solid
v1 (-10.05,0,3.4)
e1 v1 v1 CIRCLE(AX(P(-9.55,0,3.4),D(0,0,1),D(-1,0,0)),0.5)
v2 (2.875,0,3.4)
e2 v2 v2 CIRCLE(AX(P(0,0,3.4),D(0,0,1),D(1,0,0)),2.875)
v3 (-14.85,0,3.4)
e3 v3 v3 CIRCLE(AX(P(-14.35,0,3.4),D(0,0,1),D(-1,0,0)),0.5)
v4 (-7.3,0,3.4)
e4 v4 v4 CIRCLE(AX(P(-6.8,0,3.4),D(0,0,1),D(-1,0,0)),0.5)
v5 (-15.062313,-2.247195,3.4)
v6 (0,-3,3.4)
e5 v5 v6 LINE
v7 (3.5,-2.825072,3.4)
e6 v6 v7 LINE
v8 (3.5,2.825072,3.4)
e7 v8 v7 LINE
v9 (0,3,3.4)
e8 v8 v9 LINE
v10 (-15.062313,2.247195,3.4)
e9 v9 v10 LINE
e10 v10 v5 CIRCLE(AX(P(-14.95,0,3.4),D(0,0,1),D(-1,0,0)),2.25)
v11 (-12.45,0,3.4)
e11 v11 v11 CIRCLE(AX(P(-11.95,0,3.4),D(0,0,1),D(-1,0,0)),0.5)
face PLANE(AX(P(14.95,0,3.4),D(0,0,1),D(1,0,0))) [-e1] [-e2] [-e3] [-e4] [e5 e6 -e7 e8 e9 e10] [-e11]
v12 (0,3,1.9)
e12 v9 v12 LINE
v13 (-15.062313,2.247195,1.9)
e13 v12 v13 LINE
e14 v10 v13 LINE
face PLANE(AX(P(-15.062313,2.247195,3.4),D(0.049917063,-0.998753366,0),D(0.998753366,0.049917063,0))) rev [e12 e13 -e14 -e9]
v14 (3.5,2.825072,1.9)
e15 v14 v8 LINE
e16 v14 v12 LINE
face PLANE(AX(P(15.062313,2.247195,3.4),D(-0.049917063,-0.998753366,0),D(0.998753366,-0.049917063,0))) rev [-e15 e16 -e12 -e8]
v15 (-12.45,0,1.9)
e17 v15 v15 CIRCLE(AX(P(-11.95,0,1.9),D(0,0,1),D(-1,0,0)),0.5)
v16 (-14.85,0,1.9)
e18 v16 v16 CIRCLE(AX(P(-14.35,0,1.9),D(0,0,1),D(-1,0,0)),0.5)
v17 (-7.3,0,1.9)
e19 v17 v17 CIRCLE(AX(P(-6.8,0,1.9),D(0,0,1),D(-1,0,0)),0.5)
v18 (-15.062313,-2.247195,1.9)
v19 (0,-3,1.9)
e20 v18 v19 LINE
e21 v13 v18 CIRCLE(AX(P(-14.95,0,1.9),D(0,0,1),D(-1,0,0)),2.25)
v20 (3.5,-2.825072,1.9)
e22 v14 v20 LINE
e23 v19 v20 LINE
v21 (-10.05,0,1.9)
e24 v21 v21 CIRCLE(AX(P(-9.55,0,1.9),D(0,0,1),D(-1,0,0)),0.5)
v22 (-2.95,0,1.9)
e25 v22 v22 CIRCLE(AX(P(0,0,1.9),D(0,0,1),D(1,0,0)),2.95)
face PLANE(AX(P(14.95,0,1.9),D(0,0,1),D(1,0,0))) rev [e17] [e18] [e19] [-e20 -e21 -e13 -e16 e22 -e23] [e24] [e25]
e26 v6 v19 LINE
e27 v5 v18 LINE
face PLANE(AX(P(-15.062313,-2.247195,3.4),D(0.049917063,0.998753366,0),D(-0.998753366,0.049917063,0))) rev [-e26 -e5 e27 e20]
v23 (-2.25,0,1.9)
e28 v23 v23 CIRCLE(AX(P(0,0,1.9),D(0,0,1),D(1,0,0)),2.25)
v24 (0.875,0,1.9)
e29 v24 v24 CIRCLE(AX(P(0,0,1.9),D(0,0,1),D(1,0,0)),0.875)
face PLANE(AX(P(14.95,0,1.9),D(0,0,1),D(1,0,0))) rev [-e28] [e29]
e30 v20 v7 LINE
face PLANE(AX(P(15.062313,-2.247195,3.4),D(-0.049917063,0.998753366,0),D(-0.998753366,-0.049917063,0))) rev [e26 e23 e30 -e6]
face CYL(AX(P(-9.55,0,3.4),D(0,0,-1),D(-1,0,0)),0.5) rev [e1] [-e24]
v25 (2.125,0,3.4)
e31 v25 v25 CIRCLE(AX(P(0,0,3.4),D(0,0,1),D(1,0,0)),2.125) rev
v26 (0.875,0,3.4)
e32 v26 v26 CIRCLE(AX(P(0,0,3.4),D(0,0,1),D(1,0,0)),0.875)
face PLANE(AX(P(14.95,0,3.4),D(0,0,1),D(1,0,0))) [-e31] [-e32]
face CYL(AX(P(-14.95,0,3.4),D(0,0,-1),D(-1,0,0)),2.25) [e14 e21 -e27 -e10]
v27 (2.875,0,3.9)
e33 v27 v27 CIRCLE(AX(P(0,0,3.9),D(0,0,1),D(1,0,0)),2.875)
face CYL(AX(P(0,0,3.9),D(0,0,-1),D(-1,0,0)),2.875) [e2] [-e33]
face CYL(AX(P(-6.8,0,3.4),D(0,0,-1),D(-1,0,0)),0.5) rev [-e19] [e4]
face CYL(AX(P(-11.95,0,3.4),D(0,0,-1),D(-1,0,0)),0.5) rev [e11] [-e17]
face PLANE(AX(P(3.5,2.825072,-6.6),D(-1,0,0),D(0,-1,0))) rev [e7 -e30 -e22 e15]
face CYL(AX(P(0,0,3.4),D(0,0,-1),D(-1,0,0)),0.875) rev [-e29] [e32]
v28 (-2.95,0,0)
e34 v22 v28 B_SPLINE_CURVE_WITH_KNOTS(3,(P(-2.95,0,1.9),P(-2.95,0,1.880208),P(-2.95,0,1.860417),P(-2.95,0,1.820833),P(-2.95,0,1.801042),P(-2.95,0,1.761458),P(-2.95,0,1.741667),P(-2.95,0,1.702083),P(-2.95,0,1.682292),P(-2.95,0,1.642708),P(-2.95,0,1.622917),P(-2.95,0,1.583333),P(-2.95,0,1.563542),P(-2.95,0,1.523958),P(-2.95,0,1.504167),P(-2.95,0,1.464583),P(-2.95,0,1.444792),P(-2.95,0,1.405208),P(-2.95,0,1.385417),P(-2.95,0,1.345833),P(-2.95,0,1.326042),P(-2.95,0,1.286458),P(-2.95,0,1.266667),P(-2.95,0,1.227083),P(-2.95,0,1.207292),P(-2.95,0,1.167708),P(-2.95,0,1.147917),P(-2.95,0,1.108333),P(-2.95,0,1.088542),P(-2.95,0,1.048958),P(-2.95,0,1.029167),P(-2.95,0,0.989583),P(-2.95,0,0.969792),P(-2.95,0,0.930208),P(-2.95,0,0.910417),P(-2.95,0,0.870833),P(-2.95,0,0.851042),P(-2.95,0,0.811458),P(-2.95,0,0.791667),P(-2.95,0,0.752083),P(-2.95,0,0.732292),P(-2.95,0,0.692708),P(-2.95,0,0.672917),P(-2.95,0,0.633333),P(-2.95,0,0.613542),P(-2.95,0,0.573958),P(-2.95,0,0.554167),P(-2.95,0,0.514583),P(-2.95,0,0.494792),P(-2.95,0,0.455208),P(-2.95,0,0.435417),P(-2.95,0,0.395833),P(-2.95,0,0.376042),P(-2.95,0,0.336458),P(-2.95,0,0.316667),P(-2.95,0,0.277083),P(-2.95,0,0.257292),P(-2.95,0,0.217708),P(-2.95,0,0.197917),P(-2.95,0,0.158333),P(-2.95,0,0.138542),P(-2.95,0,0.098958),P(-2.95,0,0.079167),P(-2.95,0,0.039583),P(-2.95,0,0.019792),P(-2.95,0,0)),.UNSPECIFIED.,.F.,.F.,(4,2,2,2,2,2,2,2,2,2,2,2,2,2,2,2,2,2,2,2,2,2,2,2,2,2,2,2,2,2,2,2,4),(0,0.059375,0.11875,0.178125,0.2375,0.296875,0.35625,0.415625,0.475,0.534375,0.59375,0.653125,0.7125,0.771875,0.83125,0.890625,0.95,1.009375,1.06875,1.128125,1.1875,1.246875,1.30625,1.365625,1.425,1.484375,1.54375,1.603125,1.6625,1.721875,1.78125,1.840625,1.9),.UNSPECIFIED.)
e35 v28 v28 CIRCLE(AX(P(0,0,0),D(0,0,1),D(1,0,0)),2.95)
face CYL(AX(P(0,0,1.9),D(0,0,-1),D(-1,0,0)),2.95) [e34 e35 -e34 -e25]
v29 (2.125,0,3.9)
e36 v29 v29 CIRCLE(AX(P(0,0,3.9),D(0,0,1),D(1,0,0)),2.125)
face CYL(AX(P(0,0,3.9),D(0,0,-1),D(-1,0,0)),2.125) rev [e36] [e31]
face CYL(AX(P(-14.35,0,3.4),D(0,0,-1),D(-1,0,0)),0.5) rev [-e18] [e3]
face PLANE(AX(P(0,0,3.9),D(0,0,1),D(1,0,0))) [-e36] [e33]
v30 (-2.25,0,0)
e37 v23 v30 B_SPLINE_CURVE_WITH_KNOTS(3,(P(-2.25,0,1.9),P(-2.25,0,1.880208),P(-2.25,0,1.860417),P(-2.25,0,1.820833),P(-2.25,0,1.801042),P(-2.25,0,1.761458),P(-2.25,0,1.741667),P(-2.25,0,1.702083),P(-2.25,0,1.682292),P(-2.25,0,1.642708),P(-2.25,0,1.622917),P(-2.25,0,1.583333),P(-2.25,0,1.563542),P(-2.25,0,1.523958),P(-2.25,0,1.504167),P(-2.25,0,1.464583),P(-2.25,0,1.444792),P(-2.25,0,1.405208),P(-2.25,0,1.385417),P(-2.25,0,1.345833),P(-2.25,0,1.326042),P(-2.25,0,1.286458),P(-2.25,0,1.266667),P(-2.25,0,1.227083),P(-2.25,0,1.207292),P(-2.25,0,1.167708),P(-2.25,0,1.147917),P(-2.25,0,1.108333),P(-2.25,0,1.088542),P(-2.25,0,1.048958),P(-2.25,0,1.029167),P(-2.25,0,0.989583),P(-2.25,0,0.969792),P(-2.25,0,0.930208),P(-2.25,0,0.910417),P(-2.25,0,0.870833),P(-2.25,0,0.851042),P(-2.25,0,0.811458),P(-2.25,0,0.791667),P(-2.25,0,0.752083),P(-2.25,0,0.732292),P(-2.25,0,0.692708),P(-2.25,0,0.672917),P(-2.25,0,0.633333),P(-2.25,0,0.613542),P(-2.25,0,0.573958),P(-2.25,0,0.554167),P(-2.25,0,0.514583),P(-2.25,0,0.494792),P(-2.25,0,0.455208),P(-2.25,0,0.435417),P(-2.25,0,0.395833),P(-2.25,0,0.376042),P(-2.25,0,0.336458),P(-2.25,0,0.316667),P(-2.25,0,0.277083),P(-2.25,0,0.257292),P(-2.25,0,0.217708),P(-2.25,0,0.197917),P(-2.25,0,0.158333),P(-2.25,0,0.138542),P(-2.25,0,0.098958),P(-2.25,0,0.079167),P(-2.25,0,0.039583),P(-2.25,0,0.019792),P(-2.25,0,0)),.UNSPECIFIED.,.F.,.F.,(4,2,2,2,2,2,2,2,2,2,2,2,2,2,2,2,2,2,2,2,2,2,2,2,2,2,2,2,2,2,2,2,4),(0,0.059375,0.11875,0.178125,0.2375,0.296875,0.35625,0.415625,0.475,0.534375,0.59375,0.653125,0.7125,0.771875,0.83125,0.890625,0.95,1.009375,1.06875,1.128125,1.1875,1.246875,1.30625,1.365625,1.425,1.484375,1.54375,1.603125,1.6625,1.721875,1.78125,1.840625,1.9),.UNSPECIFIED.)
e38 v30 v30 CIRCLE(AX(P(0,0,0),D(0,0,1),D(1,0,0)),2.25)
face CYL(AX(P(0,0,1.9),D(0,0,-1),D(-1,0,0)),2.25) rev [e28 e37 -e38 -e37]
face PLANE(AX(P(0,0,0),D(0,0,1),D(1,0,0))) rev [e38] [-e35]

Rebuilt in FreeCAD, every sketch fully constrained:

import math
import FreeCAD as App
import Part
import Sketcher
Q = App.Units.Quantity

doc = App.newDocument("Part")
params = doc.addObject("Spreadsheet::Sheet", "Params")
for row, (alias, value) in enumerate([
    ("sketch1_diameter", "5.9 mm"),
    ("sketch1_diameter2", "4.5 mm"),
    ("pad1_length", "1.9 mm"),
    ("sketch2_diameter", "1 mm"),
    ("sketch2_diameter2", "1.75 mm"),
    ("sketch2_radius", "2.25 mm"),
    ("pad2_length", "1.5 mm"),
    ("sketch3_diameter", "5.75 mm"),
    ("sketch3_diameter2", "4.25 mm"),
    ("pad3_length", "0.5 mm"),
    ("sketch4_radius", "2.25 mm"),
    ("pocket1_length", "10 mm"),
], start=1):
    params.set(f"A{row}", alias)
    params.set(f"B{row}", "=" + value)
    params.setAlias(f"B{row}", alias)

body = doc.addObject("PartDesign::Body", "Body")

sketch1 = body.newObject("Sketcher::SketchObject", "Sketch")
sketch1.AttachmentSupport = (doc.getObject("XY_Plane"), [""])
sketch1.MapMode = "FlatFace"
sketch1.addGeometry(Part.Circle(App.Vector(0, 0, 0), App.Vector(0, 0, 1), 2.95), False)
sketch1.addGeometry(Part.Circle(App.Vector(0, 0, 0), App.Vector(0, 0, 1), 2.25), False)
sketch1.addConstraint(Sketcher.Constraint("Coincident", 0, 3, -1, 1))
sketch1.addConstraint(Sketcher.Constraint("Coincident", 1, 3, -1, 1))
sketch1.addConstraint(Sketcher.Constraint("Diameter", 0, Q("5.9 mm")))
sketch1.addConstraint(Sketcher.Constraint("Diameter", 1, Q("4.5 mm")))
sketch1.setExpression("Constraints[2]", "Params.sketch1_diameter")
sketch1.setExpression("Constraints[3]", "Params.sketch1_diameter2")
pad1 = body.newObject("PartDesign::Pad", "Pad")
pad1.Profile = sketch1
pad1.setExpression("Length", "Params.pad1_length")

sketch2 = body.newObject("Sketcher::SketchObject", "Sketch001")
sketch2.AttachmentSupport = (doc.getObject("XY_Plane"), [""])
sketch2.MapMode = "FlatFace"
sketch2.AttachmentOffset = App.Placement(App.Vector(0, 0, 1.9), App.Rotation())
sketch2.addGeometry(Part.LineSegment(App.Vector(15.062313, 2.247195, 0), App.Vector(0, 3, 0)), False)
sketch2.addGeometry(Part.LineSegment(App.Vector(0, 3, 0), App.Vector(-15.062313, 2.247195, 0)), False)
sketch2.addGeometry(Part.ArcOfCircle(Part.Circle(App.Vector(-14.95, 0, 0), App.Vector(0, 0, 1), 2.25), math.radians(92.861226), math.radians(267.138774)), False)
sketch2.addGeometry(Part.LineSegment(App.Vector(-15.062313, -2.247195, 0), App.Vector(0, -3, 0)), False)
sketch2.addGeometry(Part.LineSegment(App.Vector(0, -3, 0), App.Vector(15.062313, -2.247195, 0)), False)
sketch2.addGeometry(Part.ArcOfCircle(Part.Circle(App.Vector(14.95, 0, 0), App.Vector(0, 0, 1), 2.25), math.radians(-87.138774), math.radians(87.138774)), False)
sketch2.addGeometry(Part.Circle(App.Vector(-14.35, 0, 0), App.Vector(0, 0, 1), 0.5), False)
sketch2.addGeometry(Part.Circle(App.Vector(-11.95, 0, 0), App.Vector(0, 0, 1), 0.5), False)
sketch2.addGeometry(Part.Circle(App.Vector(-9.55, 0, 0), App.Vector(0, 0, 1), 0.5), False)
sketch2.addGeometry(Part.Circle(App.Vector(-6.8, 0, 0), App.Vector(0, 0, 1), 0.5), False)
sketch2.addGeometry(Part.Circle(App.Vector(0, 0, 0), App.Vector(0, 0, 1), 0.875), False)
sketch2.addGeometry(Part.Circle(App.Vector(6.8, 0, 0), App.Vector(0, 0, 1), 0.5), False)
sketch2.addGeometry(Part.Circle(App.Vector(9.55, 0, 0), App.Vector(0, 0, 1), 0.5), False)
sketch2.addGeometry(Part.Circle(App.Vector(11.95, 0, 0), App.Vector(0, 0, 1), 0.5), False)
sketch2.addGeometry(Part.Circle(App.Vector(14.35, 0, 0), App.Vector(0, 0, 1), 0.5), False)
sketch2.addConstraint(Sketcher.Constraint("Coincident", 0, 2, 1, 1))
sketch2.addConstraint(Sketcher.Constraint("Tangent", 1, 2, 2, 1))
sketch2.addConstraint(Sketcher.Constraint("Tangent", 2, 2, 3, 1))
sketch2.addConstraint(Sketcher.Constraint("Coincident", 3, 2, 4, 1))
sketch2.addConstraint(Sketcher.Constraint("Tangent", 4, 2, 5, 1))
sketch2.addConstraint(Sketcher.Constraint("Tangent", 5, 2, 0, 1))
sketch2.addConstraint(Sketcher.Constraint("Coincident", 10, 3, -1, 1))
sketch2.addConstraint(Sketcher.Constraint("Equal", 2, 5))
sketch2.addConstraint(Sketcher.Constraint("Equal", 6, 7))
sketch2.addConstraint(Sketcher.Constraint("Equal", 7, 8))
sketch2.addConstraint(Sketcher.Constraint("Equal", 8, 9))
sketch2.addConstraint(Sketcher.Constraint("Equal", 9, 11))
sketch2.addConstraint(Sketcher.Constraint("Equal", 11, 12))
sketch2.addConstraint(Sketcher.Constraint("Equal", 12, 13))
sketch2.addConstraint(Sketcher.Constraint("Equal", 13, 14))
sketch2.addConstraint(Sketcher.Constraint("Symmetric", 2, 3, 5, 3, -1, 1))
sketch2.addConstraint(Sketcher.Constraint("Symmetric", 9, 3, 11, 3, -1, 1))
sketch2.addConstraint(Sketcher.Constraint("Symmetric", 8, 3, 12, 3, -1, 1))
sketch2.addConstraint(Sketcher.Constraint("Symmetric", 7, 3, 13, 3, -1, 1))
sketch2.addConstraint(Sketcher.Constraint("Symmetric", 6, 3, 14, 3, -1, 1))
sketch2.addConstraint(Sketcher.Constraint("Symmetric", 0, 2, 3, 2, -1, 1))
sketch2.addConstraint(Sketcher.Constraint("Symmetric", 2, 2, 4, 2, -2))
sketch2.addConstraint(Sketcher.Constraint("PointOnObject", 6, 3, -1))
sketch2.addConstraint(Sketcher.Constraint("PointOnObject", 7, 3, -1))
sketch2.addConstraint(Sketcher.Constraint("PointOnObject", 8, 3, -1))
sketch2.addConstraint(Sketcher.Constraint("PointOnObject", 9, 3, -1))
sketch2.addConstraint(Sketcher.Constraint("Diameter", 6, Q("1 mm")))
sketch2.addConstraint(Sketcher.Constraint("Diameter", 10, Q("1.75 mm")))
sketch2.addConstraint(Sketcher.Constraint("Radius", 2, Q("2.25 mm")))
sketch2.addConstraint(Sketcher.Constraint("DistanceY", -1, 1, 0, 2, Q("3 mm")))
sketch2.addConstraint(Sketcher.Constraint("DistanceX", 2, 3, 7, 3, Q("3 mm")))
sketch2.addConstraint(Sketcher.Constraint("DistanceX", 9, 3, -1, 1, Q("6.8 mm")))
sketch2.addConstraint(Sketcher.Constraint("DistanceX", 2, 3, 5, 3, Q("29.9 mm")))
sketch2.addConstraint(Sketcher.Constraint("DistanceX", 2, 3, 6, 3, Q("0.6 mm")))
sketch2.addConstraint(Sketcher.Constraint("DistanceX", 7, 3, 8, 3, Q("2.4 mm")))
sketch2.setExpression("Constraints[26]", "Params.sketch2_diameter")
sketch2.setExpression("Constraints[27]", "Params.sketch2_diameter2")
sketch2.setExpression("Constraints[28]", "Params.sketch2_radius")
pad2 = body.newObject("PartDesign::Pad", "Pad001")
pad2.Profile = sketch2
pad2.setExpression("Length", "Params.pad2_length")

sketch3 = body.newObject("Sketcher::SketchObject", "Sketch002")
sketch3.AttachmentSupport = (doc.getObject("XY_Plane"), [""])
sketch3.MapMode = "FlatFace"
sketch3.AttachmentOffset = App.Placement(App.Vector(0, 0, 3.4), App.Rotation())
sketch3.addGeometry(Part.Circle(App.Vector(0, 0, 0), App.Vector(0, 0, 1), 2.875), False)
sketch3.addGeometry(Part.Circle(App.Vector(0, 0, 0), App.Vector(0, 0, 1), 2.125), False)
sketch3.addConstraint(Sketcher.Constraint("Coincident", 0, 3, -1, 1))
sketch3.addConstraint(Sketcher.Constraint("Coincident", 1, 3, -1, 1))
sketch3.addConstraint(Sketcher.Constraint("Diameter", 0, Q("5.75 mm")))
sketch3.addConstraint(Sketcher.Constraint("Diameter", 1, Q("4.25 mm")))
sketch3.setExpression("Constraints[2]", "Params.sketch3_diameter")
sketch3.setExpression("Constraints[3]", "Params.sketch3_diameter2")
pad3 = body.newObject("PartDesign::Pad", "Pad002")
pad3.Profile = sketch3
pad3.setExpression("Length", "Params.pad3_length")

sketch4 = body.newObject("Sketcher::SketchObject", "Sketch003")
sketch4.AttachmentSupport = (doc.getObject("XY_Plane"), [""])
sketch4.MapMode = "FlatFace"
sketch4.AttachmentOffset = App.Placement(App.Vector(0, 0, -6.6), App.Rotation())
sketch4.addGeometry(Part.LineSegment(App.Vector(3.5, 2.825072, 0), App.Vector(3.5, -2.825072, 0)), False)
sketch4.addGeometry(Part.LineSegment(App.Vector(3.5, -2.825072, 0), App.Vector(15.062313, -2.247195, 0)), False)
sketch4.addGeometry(Part.ArcOfCircle(Part.Circle(App.Vector(14.95, 0, 0), App.Vector(0, 0, 1), 2.25), math.radians(-87.138774), math.radians(87.138774)), False)
sketch4.addGeometry(Part.LineSegment(App.Vector(15.062313, 2.247195, 0), App.Vector(3.5, 2.825072, 0)), False)
sketch4.addConstraint(Sketcher.Constraint("Coincident", 0, 2, 1, 1))
sketch4.addConstraint(Sketcher.Constraint("Tangent", 1, 2, 2, 1))
sketch4.addConstraint(Sketcher.Constraint("Tangent", 2, 2, 3, 1))
sketch4.addConstraint(Sketcher.Constraint("Coincident", 3, 2, 0, 1))
sketch4.addConstraint(Sketcher.Constraint("Vertical", 0))
sketch4.addConstraint(Sketcher.Constraint("Symmetric", 1, 2, 2, 2, -1))
sketch4.addConstraint(Sketcher.Constraint("Radius", 2, Q("2.25 mm")))
sketch4.addConstraint(Sketcher.Constraint("DistanceX", -1, 1, 0, 2, Q("3.5 mm")))
sketch4.addConstraint(Sketcher.Constraint("DistanceX", -1, 1, 2, 3, Q("14.95 mm")))
sketch4.addConstraint(Sketcher.Constraint("DistanceY", 0, 2, 0, 1, Q("5.650144 mm")))
sketch4.setExpression("Constraints[6]", "Params.sketch4_radius")
pocket1 = body.newObject("PartDesign::Pocket", "Pocket")
pocket1.Profile = sketch4
pocket1.setExpression("Length", "Params.pocket1_length")
pocket1.Reversed = True

doc.recompute()
